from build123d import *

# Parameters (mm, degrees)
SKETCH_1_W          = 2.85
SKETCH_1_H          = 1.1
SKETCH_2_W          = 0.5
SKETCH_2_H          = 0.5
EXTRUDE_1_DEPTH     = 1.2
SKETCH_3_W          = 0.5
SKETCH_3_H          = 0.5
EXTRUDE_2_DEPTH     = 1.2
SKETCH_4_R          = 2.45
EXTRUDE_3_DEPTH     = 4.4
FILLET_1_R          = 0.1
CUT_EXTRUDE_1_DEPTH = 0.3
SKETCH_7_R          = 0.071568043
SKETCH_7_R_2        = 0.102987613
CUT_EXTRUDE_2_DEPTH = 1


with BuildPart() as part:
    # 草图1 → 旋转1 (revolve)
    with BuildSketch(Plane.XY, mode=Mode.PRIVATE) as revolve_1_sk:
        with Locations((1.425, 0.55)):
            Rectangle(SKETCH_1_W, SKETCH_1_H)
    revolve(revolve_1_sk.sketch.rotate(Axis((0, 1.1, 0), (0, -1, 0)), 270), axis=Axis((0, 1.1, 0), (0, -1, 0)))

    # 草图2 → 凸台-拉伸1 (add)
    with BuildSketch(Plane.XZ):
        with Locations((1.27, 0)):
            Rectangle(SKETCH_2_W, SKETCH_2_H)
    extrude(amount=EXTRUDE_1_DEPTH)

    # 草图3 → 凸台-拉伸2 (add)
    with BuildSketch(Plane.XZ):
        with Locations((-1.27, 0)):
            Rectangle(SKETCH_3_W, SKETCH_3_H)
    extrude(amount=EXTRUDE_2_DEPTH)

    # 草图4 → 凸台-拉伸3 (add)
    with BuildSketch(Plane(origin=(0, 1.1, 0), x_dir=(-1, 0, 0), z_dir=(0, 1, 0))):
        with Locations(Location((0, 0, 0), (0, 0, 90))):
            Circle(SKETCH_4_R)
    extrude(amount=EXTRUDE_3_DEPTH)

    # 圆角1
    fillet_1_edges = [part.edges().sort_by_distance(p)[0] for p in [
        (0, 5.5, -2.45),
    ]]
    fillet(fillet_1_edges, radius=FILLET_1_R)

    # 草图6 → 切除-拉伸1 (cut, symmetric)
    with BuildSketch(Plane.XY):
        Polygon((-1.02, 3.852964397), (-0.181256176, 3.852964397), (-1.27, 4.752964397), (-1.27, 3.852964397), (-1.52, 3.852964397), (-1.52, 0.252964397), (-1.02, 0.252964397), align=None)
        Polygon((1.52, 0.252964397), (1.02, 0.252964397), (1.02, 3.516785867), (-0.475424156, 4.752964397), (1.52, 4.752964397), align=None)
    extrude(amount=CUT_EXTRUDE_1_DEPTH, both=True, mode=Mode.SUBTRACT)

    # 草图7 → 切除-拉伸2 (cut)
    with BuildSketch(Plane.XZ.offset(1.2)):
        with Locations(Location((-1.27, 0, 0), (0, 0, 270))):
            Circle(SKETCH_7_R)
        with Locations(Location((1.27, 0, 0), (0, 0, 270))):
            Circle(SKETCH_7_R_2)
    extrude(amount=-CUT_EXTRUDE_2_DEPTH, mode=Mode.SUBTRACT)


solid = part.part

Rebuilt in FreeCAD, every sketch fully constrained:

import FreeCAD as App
import Part
import Sketcher
Q = App.Units.Quantity


def edges_at(feature, points):
    """Names of the edges that pass closest to the given points."""
    edges = feature.Shape.Edges
    near = lambda p: min(range(len(edges)), key=lambda i: edges[i].distToShape(Part.Vertex(*p))[0])
    return sorted({f"Edge{near(p) + 1}" for p in points})

doc = App.newDocument("Part")
body = doc.addObject("PartDesign::Body", "Body")

# Sketch on XY plane
sketch1 = doc.addObject("Sketcher::SketchObject", "Sketch")
body.addObject(sketch1)
sketch1.AttachmentSupport = (doc.XY_Plane, [""])
sketch1.MapMode = "FlatFace"
sketch1.addGeometry(Part.LineSegment(App.Vector(0, 1.1, 0), App.Vector(0, 0, 0)), False)
sketch1.addGeometry(Part.LineSegment(App.Vector(0, 0, 0), App.Vector(2.9, 0, 0)), False)
sketch1.addGeometry(Part.LineSegment(App.Vector(2.9, 0, 0), App.Vector(2.9, 1.1, 0)), False)
sketch1.addGeometry(Part.LineSegment(App.Vector(2.9, 1.1, 0), App.Vector(0, 1.1, 0)), False)
sketch1.addConstraint(Sketcher.Constraint("Coincident", 0, 2, 1, 1))
sketch1.addConstraint(Sketcher.Constraint("Coincident", 1, 2, 2, 1))
sketch1.addConstraint(Sketcher.Constraint("Coincident", 2, 2, 3, 1))
sketch1.addConstraint(Sketcher.Constraint("Coincident", 3, 2, 0, 1))
sketch1.addConstraint(Sketcher.Constraint("Vertical", 0))
sketch1.addConstraint(Sketcher.Constraint("Horizontal", 1))
sketch1.addConstraint(Sketcher.Constraint("Vertical", 2))
sketch1.addConstraint(Sketcher.Constraint("Horizontal", 3))
sketch1.addConstraint(Sketcher.Constraint("Coincident", 0, 2, -1, 1))
sketch1.addConstraint(Sketcher.Constraint("DistanceY", 0, 2, 0, 1, Q("1.1 mm")))
sketch1.addConstraint(Sketcher.Constraint("DistanceX", 1, 1, 1, 2, Q("2.85 mm")))
revolution = doc.addObject("PartDesign::Revolution", "Revolution")
body.addObject(revolution)
revolution.Profile = sketch1
revolution.ReferenceAxis = (sketch1, ["V_Axis"])
revolution.Angle = 360

# Sketch on XZ plane
sketch2 = doc.addObject("Sketcher::SketchObject", "Sketch001")
body.addObject(sketch2)
sketch2.AttachmentSupport = (doc.XZ_Plane, [""])
sketch2.MapMode = "FlatFace"
sketch2.addGeometry(Part.LineSegment(App.Vector(1, 0.2, 0), App.Vector(1, -0.2, 0)), False)
sketch2.addGeometry(Part.LineSegment(App.Vector(1, -0.2, 0), App.Vector(1.5, -0.2, 0)), False)
sketch2.addGeometry(Part.LineSegment(App.Vector(1.5, -0.2, 0), App.Vector(1.5, 0.2, 0)), False)
sketch2.addGeometry(Part.LineSegment(App.Vector(1.5, 0.2, 0), App.Vector(1, 0.2, 0)), False)
sketch2.addConstraint(Sketcher.Constraint("Coincident", 0, 2, 1, 1))
sketch2.addConstraint(Sketcher.Constraint("Coincident", 1, 2, 2, 1))
sketch2.addConstraint(Sketcher.Constraint("Coincident", 2, 2, 3, 1))
sketch2.addConstraint(Sketcher.Constraint("Coincident", 3, 2, 0, 1))
sketch2.addConstraint(Sketcher.Constraint("Vertical", 0))
sketch2.addConstraint(Sketcher.Constraint("Horizontal", 1))
sketch2.addConstraint(Sketcher.Constraint("Vertical", 2))
sketch2.addConstraint(Sketcher.Constraint("Horizontal", 3))
sketch2.addConstraint(Sketcher.Constraint("Equal", 3, 0))
sketch2.addConstraint(Sketcher.Constraint("DistanceX", 1, 1, 1, 2, Q("0.5 mm")))
sketch2.addConstraint(Sketcher.Constraint("DistanceX", -1, 1, 0, 2, Q("1.02 mm")))
sketch2.addConstraint(Sketcher.Constraint("DistanceY", 0, 2, -1, 1, Q("0.25 mm")))
pad1 = doc.addObject("PartDesign::Pad", "Pad")
body.addObject(pad1)
pad1.Profile = sketch2
pad1.Length = 1.2

# Sketch on XZ plane
sketch3 = doc.addObject("Sketcher::SketchObject", "Sketch002")
body.addObject(sketch3)
sketch3.AttachmentSupport = (doc.XZ_Plane, [""])
sketch3.MapMode = "FlatFace"
sketch3.addGeometry(Part.LineSegment(App.Vector(-1.5, 0.2, 0), App.Vector(-1.5, -0.2, 0)), False)
sketch3.addGeometry(Part.LineSegment(App.Vector(-1.5, -0.2, 0), App.Vector(-1, -0.2, 0)), False)
sketch3.addGeometry(Part.LineSegment(App.Vector(-1, -0.2, 0), App.Vector(-1, 0.2, 0)), False)
sketch3.addGeometry(Part.LineSegment(App.Vector(-1, 0.2, 0), App.Vector(-1.5, 0.2, 0)), False)
sketch3.addConstraint(Sketcher.Constraint("Coincident", 0, 2, 1, 1))
sketch3.addConstraint(Sketcher.Constraint("Coincident", 1, 2, 2, 1))
sketch3.addConstraint(Sketcher.Constraint("Coincident", 2, 2, 3, 1))
sketch3.addConstraint(Sketcher.Constraint("Coincident", 3, 2, 0, 1))
sketch3.addConstraint(Sketcher.Constraint("Vertical", 0))
sketch3.addConstraint(Sketcher.Constraint("Horizontal", 1))
sketch3.addConstraint(Sketcher.Constraint("Vertical", 2))
sketch3.addConstraint(Sketcher.Constraint("Horizontal", 3))
sketch3.addConstraint(Sketcher.Constraint("Equal", 3, 0))
sketch3.addConstraint(Sketcher.Constraint("DistanceX", 1, 1, 1, 2, Q("0.5 mm")))
sketch3.addConstraint(Sketcher.Constraint("DistanceX", 0, 2, -1, 1, Q("1.52 mm")))
sketch3.addConstraint(Sketcher.Constraint("DistanceY", 0, 2, -1, 1, Q("0.25 mm")))
pad2 = doc.addObject("PartDesign::Pad", "Pad001")
body.addObject(pad2)
pad2.Profile = sketch3
pad2.Length = 1.2

# Sketch on XZ plane
sketch4 = doc.addObject("Sketcher::SketchObject", "Sketch003")
body.addObject(sketch4)
sketch4.AttachmentSupport = (doc.XZ_Plane, [""])
sketch4.MapMode = "FlatFace"
sketch4.AttachmentOffset = App.Placement(App.Vector(0, 0, -1.1), App.Rotation())
sketch4.addGeometry(Part.Circle(App.Vector(0, 0, 0), App.Vector(0, 0, 1), 2.5), False)
sketch4.addConstraint(Sketcher.Constraint("Coincident", 0, 3, -1, 1))
sketch4.addConstraint(Sketcher.Constraint("Diameter", 0, Q("4.9 mm")))
pad3 = doc.addObject("PartDesign::Pad", "Pad002")
body.addObject(pad3)
pad3.Profile = sketch4
pad3.Length = 4.4
pad3.Reversed = True
doc.recompute()

fillet = doc.addObject("PartDesign::Fillet", "Fillet")
body.addObject(fillet)
fillet.Base = (pad3, edges_at(pad3, [(0, 5.5, -2.45)]))
fillet.Radius = 0.1

# Sketch on XY plane
sketch5 = doc.addObject("Sketcher::SketchObject", "Sketch004")
body.addObject(sketch5)
sketch5.AttachmentSupport = (doc.XY_Plane, [""])
sketch5.MapMode = "FlatFace"
sketch5.addGeometry(Part.LineSegment(App.Vector(-1.02, 3.85, 0), App.Vector(-0.18, 3.85, 0)), False)
sketch5.addGeometry(Part.LineSegment(App.Vector(-0.18, 3.85, 0), App.Vector(-1.27, 4.75, 0)), False)
sketch5.addGeometry(Part.LineSegment(App.Vector(-1.27, 4.75, 0), App.Vector(-1.27, 3.85, 0)), False)
sketch5.addGeometry(Part.LineSegment(App.Vector(-1.27, 3.85, 0), App.Vector(-1.52, 3.85, 0)), False)
sketch5.addGeometry(Part.LineSegment(App.Vector(-1.52, 3.85, 0), App.Vector(-1.52, 0.25, 0)), False)
sketch5.addGeometry(Part.LineSegment(App.Vector(-1.52, 0.25, 0), App.Vector(-1.02, 0.25, 0)), False)
sketch5.addGeometry(Part.LineSegment(App.Vector(-1.02, 0.25, 0), App.Vector(-1.02, 3.85, 0)), False)
sketch5.addGeometry(Part.LineSegment(App.Vector(1.02, 0.25, 0), App.Vector(1.52, 0.25, 0)), False)
sketch5.addGeometry(Part.LineSegment(App.Vector(1.52, 0.25, 0), App.Vector(1.52, 4.75, 0)), False)
sketch5.addGeometry(Part.LineSegment(App.Vector(1.52, 4.75, 0), App.Vector(-0.48, 4.75, 0)), False)
sketch5.addGeometry(Part.LineSegment(App.Vector(-0.48, 4.75, 0), App.Vector(1.02, 3.52, 0)), False)
sketch5.addGeometry(Part.LineSegment(App.Vector(1.02, 3.52, 0), App.Vector(1.02, 0.25, 0)), False)
sketch5.addConstraint(Sketcher.Constraint("Coincident", 0, 2, 1, 1))
sketch5.addConstraint(Sketcher.Constraint("Coincident", 1, 2, 2, 1))
sketch5.addConstraint(Sketcher.Constraint("Coincident", 2, 2, 3, 1))
sketch5.addConstraint(Sketcher.Constraint("Coincident", 3, 2, 4, 1))
sketch5.addConstraint(Sketcher.Constraint("Coincident", 4, 2, 5, 1))
sketch5.addConstraint(Sketcher.Constraint("Coincident", 5, 2, 6, 1))
sketch5.addConstraint(Sketcher.Constraint("Coincident", 6, 2, 0, 1))
sketch5.addConstraint(Sketcher.Constraint("Coincident", 7, 2, 8, 1))
sketch5.addConstraint(Sketcher.Constraint("Coincident", 8, 2, 9, 1))
sketch5.addConstraint(Sketcher.Constraint("Coincident", 9, 2, 10, 1))
sketch5.addConstraint(Sketcher.Constraint("Coincident", 10, 2, 11, 1))
sketch5.addConstraint(Sketcher.Constraint("Coincident", 11, 2, 7, 1))
sketch5.addConstraint(Sketcher.Constraint("Horizontal", 0))
sketch5.addConstraint(Sketcher.Constraint("Vertical", 2))
sketch5.addConstraint(Sketcher.Constraint("Horizontal", 3))
sketch5.addConstraint(Sketcher.Constraint("Vertical", 4))
sketch5.addConstraint(Sketcher.Constraint("Horizontal", 5))
sketch5.addConstraint(Sketcher.Constraint("Vertical", 6))
sketch5.addConstraint(Sketcher.Constraint("Horizontal", 7))
sketch5.addConstraint(Sketcher.Constraint("Vertical", 8))
sketch5.addConstraint(Sketcher.Constraint("Horizontal", 9))
sketch5.addConstraint(Sketcher.Constraint("Vertical", 11))
sketch5.addConstraint(Sketcher.Constraint("Symmetric", 4, 2, 7, 2, -2))
sketch5.addConstraint(Sketcher.Constraint("Parallel", 1, 10))
sketch5.addConstraint(Sketcher.Constraint("Horizontal", 0, 2, 2, 2))
sketch5.addConstraint(Sketcher.Constraint("Horizontal", 1, 2, 8, 2))
sketch5.addConstraint(Sketcher.Constraint("Equal", 5, 7))
sketch5.addConstraint(Sketcher.Constraint("DistanceX", 5, 1, 5, 2, Q("0.5 mm")))
sketch5.addConstraint(Sketcher.Constraint("DistanceY", 2, 2, 2, 1, Q("0.9 mm")))
sketch5.addConstraint(Sketcher.Constraint("DistanceY", 4, 2, 4, 1, Q("3.6 mm")))
sketch5.addConstraint(Sketcher.Constraint("DistanceX", 3, 2, 3, 1, Q("0.25 mm")))
sketch5.addConstraint(Sketcher.Constraint("DistanceX", 1, 2, -1, 1, Q("1.27 mm")))
sketch5.addConstraint(Sketcher.Constraint("DistanceY", 11, 2, 11, 1, Q("3.263821 mm")))
sketch5.addConstraint(Sketcher.Constraint("DistanceX", 0, 1, 0, 2, Q("0.838744 mm")))
sketch5.addConstraint(Sketcher.Constraint("DistanceY", -1, 1, 0, 2, Q("3.852964 mm")))
pocket1 = doc.addObject("PartDesign::Pocket", "Pocket")
body.addObject(pocket1)
pocket1.Profile = sketch5
pocket1.Length = 0.6
pocket1.Midplane = True

# Sketch on XZ plane
sketch6 = doc.addObject("Sketcher::SketchObject", "Sketch005")
body.addObject(sketch6)
sketch6.AttachmentSupport = (doc.XZ_Plane, [""])
sketch6.MapMode = "FlatFace"
sketch6.AttachmentOffset = App.Placement(App.Vector(0, 0, 1.2), App.Rotation())
sketch6.addGeometry(Part.Circle(App.Vector(-1.27, 0, 0), App.Vector(0, 0, 1), 0.07), False)
sketch6.addGeometry(Part.Circle(App.Vector(1.27, 0, 0), App.Vector(0, 0, 1), 0.1), False)
sketch6.addConstraint(Sketcher.Constraint("Symmetric", 0, 3, 1, 3, -1, 1))
sketch6.addConstraint(Sketcher.Constraint("PointOnObject", 0, 3, -1))
sketch6.addConstraint(Sketcher.Constraint("DistanceX", 0, 3, -1, 1, Q("1.27 mm")))
sketch6.addConstraint(Sketcher.Constraint("Diameter", 0, Q("0.143136 mm")))
sketch6.addConstraint(Sketcher.Constraint("Diameter", 1, Q("0.205975 mm")))
pocket2 = doc.addObject("PartDesign::Pocket", "Pocket001")
body.addObject(pocket2)
pocket2.Profile = sketch6
pocket2.Length = 1

doc.recompute()
